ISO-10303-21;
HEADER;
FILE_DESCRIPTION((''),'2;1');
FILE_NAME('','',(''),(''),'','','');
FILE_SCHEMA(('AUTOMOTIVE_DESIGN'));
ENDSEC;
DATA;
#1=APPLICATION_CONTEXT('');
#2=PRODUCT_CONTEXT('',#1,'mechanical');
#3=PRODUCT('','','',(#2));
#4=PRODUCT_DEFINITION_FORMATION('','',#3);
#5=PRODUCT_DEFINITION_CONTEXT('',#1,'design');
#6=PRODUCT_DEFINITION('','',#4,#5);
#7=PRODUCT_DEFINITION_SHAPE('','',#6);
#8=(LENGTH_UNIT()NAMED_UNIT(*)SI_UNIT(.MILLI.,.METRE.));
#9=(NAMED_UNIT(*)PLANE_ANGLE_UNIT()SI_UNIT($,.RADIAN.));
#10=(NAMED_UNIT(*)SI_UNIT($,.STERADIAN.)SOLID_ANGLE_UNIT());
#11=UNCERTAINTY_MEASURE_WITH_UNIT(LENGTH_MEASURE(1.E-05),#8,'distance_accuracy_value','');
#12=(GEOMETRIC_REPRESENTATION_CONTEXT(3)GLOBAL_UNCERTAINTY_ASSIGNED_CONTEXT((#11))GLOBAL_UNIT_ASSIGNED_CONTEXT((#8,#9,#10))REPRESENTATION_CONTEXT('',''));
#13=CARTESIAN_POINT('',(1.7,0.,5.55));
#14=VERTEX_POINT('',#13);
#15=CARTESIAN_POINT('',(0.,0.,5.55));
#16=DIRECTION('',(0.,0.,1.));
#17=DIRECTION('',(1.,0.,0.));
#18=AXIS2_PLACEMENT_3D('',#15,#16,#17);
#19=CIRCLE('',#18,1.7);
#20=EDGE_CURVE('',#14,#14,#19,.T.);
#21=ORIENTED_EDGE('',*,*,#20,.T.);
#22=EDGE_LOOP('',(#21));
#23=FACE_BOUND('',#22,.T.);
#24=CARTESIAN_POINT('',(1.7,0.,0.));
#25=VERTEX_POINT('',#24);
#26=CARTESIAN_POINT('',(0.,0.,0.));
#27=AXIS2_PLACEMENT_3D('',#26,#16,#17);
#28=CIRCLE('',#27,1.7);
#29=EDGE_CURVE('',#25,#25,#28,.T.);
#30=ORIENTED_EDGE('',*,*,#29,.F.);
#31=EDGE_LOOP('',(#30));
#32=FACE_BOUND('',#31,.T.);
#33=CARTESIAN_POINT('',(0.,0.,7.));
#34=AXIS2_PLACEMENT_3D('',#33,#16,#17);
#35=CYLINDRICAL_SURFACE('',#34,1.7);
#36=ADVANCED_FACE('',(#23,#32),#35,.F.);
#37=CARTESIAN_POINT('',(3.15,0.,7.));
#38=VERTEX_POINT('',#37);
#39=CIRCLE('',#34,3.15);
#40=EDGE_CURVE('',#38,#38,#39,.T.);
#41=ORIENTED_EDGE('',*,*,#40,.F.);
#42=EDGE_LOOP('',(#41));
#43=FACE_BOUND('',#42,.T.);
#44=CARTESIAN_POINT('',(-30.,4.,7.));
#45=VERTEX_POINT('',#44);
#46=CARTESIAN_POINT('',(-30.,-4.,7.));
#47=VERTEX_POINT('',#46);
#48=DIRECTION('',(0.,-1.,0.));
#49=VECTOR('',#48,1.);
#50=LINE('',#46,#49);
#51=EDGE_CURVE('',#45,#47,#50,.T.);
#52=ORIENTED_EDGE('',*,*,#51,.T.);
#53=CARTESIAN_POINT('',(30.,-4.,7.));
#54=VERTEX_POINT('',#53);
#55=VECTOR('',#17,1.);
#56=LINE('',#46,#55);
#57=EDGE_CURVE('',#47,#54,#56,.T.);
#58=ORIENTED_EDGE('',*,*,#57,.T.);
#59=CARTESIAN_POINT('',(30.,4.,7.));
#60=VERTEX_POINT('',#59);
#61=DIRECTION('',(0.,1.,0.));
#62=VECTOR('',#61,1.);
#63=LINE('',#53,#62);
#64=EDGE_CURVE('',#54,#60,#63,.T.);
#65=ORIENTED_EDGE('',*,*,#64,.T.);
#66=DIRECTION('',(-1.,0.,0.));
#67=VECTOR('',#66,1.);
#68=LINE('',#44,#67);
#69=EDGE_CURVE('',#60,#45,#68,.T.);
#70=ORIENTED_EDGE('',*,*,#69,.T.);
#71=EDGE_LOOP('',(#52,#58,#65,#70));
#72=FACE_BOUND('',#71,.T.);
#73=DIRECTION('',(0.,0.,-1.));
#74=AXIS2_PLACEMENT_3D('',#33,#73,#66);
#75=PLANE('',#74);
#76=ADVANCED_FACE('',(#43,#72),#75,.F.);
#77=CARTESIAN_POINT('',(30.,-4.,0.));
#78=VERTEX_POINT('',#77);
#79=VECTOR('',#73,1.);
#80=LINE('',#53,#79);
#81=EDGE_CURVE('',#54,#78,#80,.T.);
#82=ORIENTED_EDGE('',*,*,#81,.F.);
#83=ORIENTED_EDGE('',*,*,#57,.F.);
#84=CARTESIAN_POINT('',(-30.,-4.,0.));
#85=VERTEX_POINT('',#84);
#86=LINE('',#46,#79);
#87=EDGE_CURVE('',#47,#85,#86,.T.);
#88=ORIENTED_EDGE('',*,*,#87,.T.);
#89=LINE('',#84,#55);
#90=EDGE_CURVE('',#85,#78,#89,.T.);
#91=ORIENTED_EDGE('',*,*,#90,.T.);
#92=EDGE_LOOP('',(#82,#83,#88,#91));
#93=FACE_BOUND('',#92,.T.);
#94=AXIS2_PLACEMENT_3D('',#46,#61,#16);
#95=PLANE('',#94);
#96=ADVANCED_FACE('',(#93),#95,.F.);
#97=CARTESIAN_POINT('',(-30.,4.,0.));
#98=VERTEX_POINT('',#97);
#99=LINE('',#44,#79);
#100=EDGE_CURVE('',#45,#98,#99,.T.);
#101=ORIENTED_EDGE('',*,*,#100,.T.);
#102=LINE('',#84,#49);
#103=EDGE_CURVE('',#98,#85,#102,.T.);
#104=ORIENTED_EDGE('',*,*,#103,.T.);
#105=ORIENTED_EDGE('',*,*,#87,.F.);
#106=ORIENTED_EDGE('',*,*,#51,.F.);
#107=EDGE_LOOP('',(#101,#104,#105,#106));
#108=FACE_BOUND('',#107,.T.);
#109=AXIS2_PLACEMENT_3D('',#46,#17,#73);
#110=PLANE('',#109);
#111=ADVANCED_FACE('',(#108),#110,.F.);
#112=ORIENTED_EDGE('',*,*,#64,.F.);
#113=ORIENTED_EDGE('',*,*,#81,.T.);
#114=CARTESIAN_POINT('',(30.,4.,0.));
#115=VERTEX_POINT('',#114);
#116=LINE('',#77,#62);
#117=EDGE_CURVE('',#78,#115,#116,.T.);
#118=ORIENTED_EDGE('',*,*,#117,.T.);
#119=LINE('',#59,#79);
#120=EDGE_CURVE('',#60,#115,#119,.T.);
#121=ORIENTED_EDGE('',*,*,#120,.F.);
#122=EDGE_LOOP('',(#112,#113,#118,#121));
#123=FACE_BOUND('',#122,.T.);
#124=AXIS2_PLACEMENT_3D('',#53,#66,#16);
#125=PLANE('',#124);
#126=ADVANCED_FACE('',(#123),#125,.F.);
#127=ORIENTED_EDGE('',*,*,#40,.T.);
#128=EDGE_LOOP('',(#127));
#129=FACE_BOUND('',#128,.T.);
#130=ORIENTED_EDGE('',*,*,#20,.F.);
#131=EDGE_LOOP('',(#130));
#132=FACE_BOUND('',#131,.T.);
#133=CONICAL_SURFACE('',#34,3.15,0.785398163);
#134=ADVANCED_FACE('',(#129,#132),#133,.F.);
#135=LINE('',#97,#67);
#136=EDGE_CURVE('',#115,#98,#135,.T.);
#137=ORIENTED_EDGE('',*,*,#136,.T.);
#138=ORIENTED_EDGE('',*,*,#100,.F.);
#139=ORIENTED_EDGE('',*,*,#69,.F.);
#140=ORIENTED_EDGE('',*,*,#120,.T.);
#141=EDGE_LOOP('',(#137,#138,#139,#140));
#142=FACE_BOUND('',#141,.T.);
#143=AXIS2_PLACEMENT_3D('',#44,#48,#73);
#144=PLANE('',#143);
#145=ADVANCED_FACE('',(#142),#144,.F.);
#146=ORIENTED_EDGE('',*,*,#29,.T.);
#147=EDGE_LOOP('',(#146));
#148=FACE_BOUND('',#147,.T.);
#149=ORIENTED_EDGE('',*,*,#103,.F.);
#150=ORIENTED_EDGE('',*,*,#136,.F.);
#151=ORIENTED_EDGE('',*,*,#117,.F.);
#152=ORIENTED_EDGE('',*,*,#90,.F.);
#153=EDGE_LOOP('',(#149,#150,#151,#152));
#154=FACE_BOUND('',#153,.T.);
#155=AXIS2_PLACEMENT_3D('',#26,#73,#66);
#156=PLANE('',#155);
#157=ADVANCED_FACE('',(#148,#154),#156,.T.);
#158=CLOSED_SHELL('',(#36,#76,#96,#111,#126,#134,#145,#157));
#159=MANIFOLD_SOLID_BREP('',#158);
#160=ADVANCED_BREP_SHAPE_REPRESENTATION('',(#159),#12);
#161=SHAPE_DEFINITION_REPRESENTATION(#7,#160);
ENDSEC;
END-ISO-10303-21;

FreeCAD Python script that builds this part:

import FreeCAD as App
import Part
import Sketcher

V = App.Vector


def add_polygon(sketch, points):
    """Adds a closed chain of lines whose ends are joined by coincident constraints."""
    first, n = sketch.GeometryCount, len(points)
    for a, b in zip(points, points[1:] + points[:1]):
        sketch.addGeometry(Part.LineSegment(App.Vector(*a, 0), App.Vector(*b, 0)), False)
    for i in range(n):
        sketch.addConstraint(Sketcher.Constraint("Coincident", first + i, 2, first + (i + 1) % n, 1))

doc = App.newDocument("Part")
body = doc.addObject("PartDesign::Body", "Body")

sketch1 = doc.addObject("Sketcher::SketchObject", "Sketch")
body.addObject(sketch1)
sketch1.AttachmentSupport = (doc.XY_Plane, [""])
sketch1.MapMode = "FlatFace"
add_polygon(sketch1, [(-30, 4), (-30, -4), (30, -4), (30, 4)])
sketch1.addConstraint([
    Sketcher.Constraint("Vertical", 0),
    Sketcher.Constraint("Horizontal", 1),
    Sketcher.Constraint("Vertical", 2),
    Sketcher.Constraint("Horizontal", 3),
    Sketcher.Constraint("Symmetric", 0, 2, 2, 2, -1, 1),
    Sketcher.Constraint("DistanceX", 1, 1, 1, 2, 60.0),
    Sketcher.Constraint("DistanceY", 0, 2, 0, 1, 8.0),
])
pad1 = doc.addObject("PartDesign::Pad", "Pad")
body.addObject(pad1)
pad1.Profile = sketch1
pad1.Length = 7

sketch2 = doc.addObject("Sketcher::SketchObject", "Sketch001")
body.addObject(sketch2)
sketch2.AttachmentSupport = (doc.XY_Plane, [""])
sketch2.MapMode = "FlatFace"
sketch2.AttachmentOffset = App.Placement(V(0, 0, 7), App.Rotation())
sketch2.addGeometry(Part.Circle(V(0, 0, 0), V(0, 0, 1), 1.7), False)
sketch2.addConstraint([
    Sketcher.Constraint("Coincident", 0, 3, -1, 1),
    Sketcher.Constraint("Diameter", 0, 3.4),
])
doc.recompute()
hole = doc.addObject("PartDesign::Hole", "Hole")
body.addObject(hole)
hole.Profile = sketch2
hole.ThreadType = "None"
hole.Diameter = 3.4
hole.DepthType = "ThroughAll"
hole.HoleCutType = "Countersink"
hole.HoleCutDiameter = 6.3
hole.HoleCutCountersinkAngle = 90

doc.recompute()
